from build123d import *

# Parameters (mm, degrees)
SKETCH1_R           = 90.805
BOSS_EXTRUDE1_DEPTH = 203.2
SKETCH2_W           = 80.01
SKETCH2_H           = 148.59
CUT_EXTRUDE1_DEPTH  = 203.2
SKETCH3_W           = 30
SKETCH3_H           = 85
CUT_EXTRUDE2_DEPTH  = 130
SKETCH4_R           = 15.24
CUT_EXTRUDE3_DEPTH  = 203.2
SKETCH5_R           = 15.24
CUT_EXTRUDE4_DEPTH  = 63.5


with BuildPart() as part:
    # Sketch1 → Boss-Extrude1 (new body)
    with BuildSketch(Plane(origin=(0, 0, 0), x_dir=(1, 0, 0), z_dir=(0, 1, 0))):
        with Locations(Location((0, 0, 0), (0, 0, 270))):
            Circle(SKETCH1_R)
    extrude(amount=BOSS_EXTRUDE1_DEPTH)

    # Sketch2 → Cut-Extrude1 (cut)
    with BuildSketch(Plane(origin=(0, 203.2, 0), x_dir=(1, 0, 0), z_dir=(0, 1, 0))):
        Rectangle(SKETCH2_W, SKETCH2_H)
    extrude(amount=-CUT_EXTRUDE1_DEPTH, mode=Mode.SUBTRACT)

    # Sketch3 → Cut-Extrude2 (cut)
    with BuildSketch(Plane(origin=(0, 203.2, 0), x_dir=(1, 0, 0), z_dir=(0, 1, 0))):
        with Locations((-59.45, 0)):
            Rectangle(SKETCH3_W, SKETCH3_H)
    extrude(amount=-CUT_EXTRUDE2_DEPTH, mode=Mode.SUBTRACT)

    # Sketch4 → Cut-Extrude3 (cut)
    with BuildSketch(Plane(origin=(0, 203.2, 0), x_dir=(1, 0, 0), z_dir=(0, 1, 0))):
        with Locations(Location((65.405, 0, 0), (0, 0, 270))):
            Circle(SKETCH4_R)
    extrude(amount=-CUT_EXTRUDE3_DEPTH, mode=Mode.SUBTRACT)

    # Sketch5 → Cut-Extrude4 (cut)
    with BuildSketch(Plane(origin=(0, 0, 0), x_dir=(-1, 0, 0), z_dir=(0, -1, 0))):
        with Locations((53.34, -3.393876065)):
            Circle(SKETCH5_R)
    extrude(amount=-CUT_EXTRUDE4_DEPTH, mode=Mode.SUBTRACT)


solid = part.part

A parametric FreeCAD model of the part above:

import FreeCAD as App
import Part
import Sketcher
from FreeCAD import Vector
Q = App.Units.Quantity


def add_polygon(sketch, points):
    """Adds a closed chain of lines whose ends are joined by coincident constraints."""
    first, n = sketch.GeometryCount, len(points)
    for a, b in zip(points, points[1:] + points[:1]):
        sketch.addGeometry(Part.LineSegment(App.Vector(*a, 0), App.Vector(*b, 0)), False)
    for i in range(n):
        sketch.addConstraint(Sketcher.Constraint("Coincident", first + i, 2, first + (i + 1) % n, 1))

doc = App.newDocument("Part")
body = doc.addObject("PartDesign::Body", "Body")

# Sketch on XZ plane
sketch1 = doc.addObject("Sketcher::SketchObject", "Sketch")
body.addObject(sketch1)
sketch1.AttachmentSupport = (doc.XZ_Plane, [""])
sketch1.MapMode = "FlatFace"
sketch1.addGeometry(Part.Circle(Vector(0, 0, 0), Vector(0, 0, 1), 90.805), False)
sketch1.addConstraint([
    Sketcher.Constraint("Coincident", 0, 3, -1, 1),
    Sketcher.Constraint("Diameter", 0, Q("7.15 in")),
])
pad1 = doc.addObject("PartDesign::Pad", "Pad")
body.addObject(pad1)
pad1.Profile = sketch1
pad1.Length = Q("8 in")
pad1.Reversed = True

# Sketch on XZ plane
sketch2 = doc.addObject("Sketcher::SketchObject", "Sketch001")
body.addObject(sketch2)
sketch2.AttachmentSupport = (doc.XZ_Plane, [""])
sketch2.MapMode = "FlatFace"
sketch2.AttachmentOffset = App.Placement(Vector(0, 0, -8 * 25.4), App.Rotation())
add_polygon(sketch2, [(-40.005, -74.295), (-40.005, 74.295), (40.005, 74.295), (40.005, -74.295)])  # lines 0-3
sketch2.addConstraint([
    Sketcher.Constraint("Vertical", 0),
    Sketcher.Constraint("Horizontal", 1),
    Sketcher.Constraint("Vertical", 2),
    Sketcher.Constraint("Horizontal", 3),
    Sketcher.Constraint("Symmetric", 0, 2, 2, 2, -1, 1),
    Sketcher.Constraint("DistanceX", 1, 1, 1, 2, Q("3.15 in")),
    Sketcher.Constraint("DistanceY", 0, 1, 0, 2, Q("5.85 in")),
])
pocket1 = doc.addObject("PartDesign::Pocket", "Pocket")
body.addObject(pocket1)
pocket1.Profile = sketch2
pocket1.Length = Q("8 in")
pocket1.Reversed = True

# Sketch on XZ plane
sketch3 = doc.addObject("Sketcher::SketchObject", "Sketch002")
body.addObject(sketch3)
sketch3.AttachmentSupport = (doc.XZ_Plane, [""])
sketch3.MapMode = "FlatFace"
sketch3.AttachmentOffset = App.Placement(Vector(0, 0, -8 * 25.4), App.Rotation())
add_polygon(sketch3, [(-74.45, -42.5), (-74.45, 42.5), (-44.45, 42.5), (-44.45, -42.5)])  # lines 0-3
sketch3.addConstraint([
    Sketcher.Constraint("Vertical", 0),
    Sketcher.Constraint("Horizontal", 1),
    Sketcher.Constraint("Vertical", 2),
    Sketcher.Constraint("Horizontal", 3),
    Sketcher.Constraint("DistanceX", 1, 2, -1, 1, Q("1.75 in")),
    Sketcher.Constraint("DistanceX", 1, 1, 1, 2, 30.0),
    Sketcher.Constraint("DistanceY", 0, 1, 0, 2, 85.0),
    Sketcher.Constraint("DistanceY", -1, 1, 0, 2, 42.5),
])
pocket2 = doc.addObject("PartDesign::Pocket", "Pocket001")
body.addObject(pocket2)
pocket2.Profile = sketch3
pocket2.Length = 130
pocket2.Reversed = True

# Sketch on XZ plane
sketch4 = doc.addObject("Sketcher::SketchObject", "Sketch003")
body.addObject(sketch4)
sketch4.AttachmentSupport = (doc.XZ_Plane, [""])
sketch4.MapMode = "FlatFace"
sketch4.AttachmentOffset = App.Placement(Vector(0, 0, -8 * 25.4), App.Rotation())
sketch4.addGeometry(Part.Circle(Vector(65.405, 0, 0), Vector(0, 0, 1), 15.24), False)
sketch4.addConstraint([
    Sketcher.Constraint("PointOnObject", 0, 3, -1),
    Sketcher.Constraint("Diameter", 0, Q("1.2 in")),
    Sketcher.Constraint("DistanceX", -1, 1, 0, 3, Q("2.575 in")),
])
pocket3 = doc.addObject("PartDesign::Pocket", "Pocket002")
body.addObject(pocket3)
pocket3.Profile = sketch4
pocket3.Length = Q("8 in")
pocket3.Reversed = True

# Sketch on XZ plane
sketch5 = doc.addObject("Sketcher::SketchObject", "Sketch004")
body.addObject(sketch5)
sketch5.AttachmentSupport = (doc.XZ_Plane, [""])
sketch5.MapMode = "FlatFace"
sketch5.addGeometry(Part.Circle(Vector(-53.34, 3.393876, 0), Vector(0, 0, 1), 15.24), False)
sketch5.addConstraint([
    Sketcher.Constraint("Diameter", 0, Q("1.2 in")),
    Sketcher.Constraint("DistanceX", 0, 3, -1, 1, Q("2.1 in")),
    Sketcher.Constraint("DistanceY", -1, 1, 0, 3, 3.393876),
])
pocket4 = doc.addObject("PartDesign::Pocket", "Pocket003")
body.addObject(pocket4)
pocket4.Profile = sketch5
pocket4.Length = Q("2.5 in")

doc.recompute()
